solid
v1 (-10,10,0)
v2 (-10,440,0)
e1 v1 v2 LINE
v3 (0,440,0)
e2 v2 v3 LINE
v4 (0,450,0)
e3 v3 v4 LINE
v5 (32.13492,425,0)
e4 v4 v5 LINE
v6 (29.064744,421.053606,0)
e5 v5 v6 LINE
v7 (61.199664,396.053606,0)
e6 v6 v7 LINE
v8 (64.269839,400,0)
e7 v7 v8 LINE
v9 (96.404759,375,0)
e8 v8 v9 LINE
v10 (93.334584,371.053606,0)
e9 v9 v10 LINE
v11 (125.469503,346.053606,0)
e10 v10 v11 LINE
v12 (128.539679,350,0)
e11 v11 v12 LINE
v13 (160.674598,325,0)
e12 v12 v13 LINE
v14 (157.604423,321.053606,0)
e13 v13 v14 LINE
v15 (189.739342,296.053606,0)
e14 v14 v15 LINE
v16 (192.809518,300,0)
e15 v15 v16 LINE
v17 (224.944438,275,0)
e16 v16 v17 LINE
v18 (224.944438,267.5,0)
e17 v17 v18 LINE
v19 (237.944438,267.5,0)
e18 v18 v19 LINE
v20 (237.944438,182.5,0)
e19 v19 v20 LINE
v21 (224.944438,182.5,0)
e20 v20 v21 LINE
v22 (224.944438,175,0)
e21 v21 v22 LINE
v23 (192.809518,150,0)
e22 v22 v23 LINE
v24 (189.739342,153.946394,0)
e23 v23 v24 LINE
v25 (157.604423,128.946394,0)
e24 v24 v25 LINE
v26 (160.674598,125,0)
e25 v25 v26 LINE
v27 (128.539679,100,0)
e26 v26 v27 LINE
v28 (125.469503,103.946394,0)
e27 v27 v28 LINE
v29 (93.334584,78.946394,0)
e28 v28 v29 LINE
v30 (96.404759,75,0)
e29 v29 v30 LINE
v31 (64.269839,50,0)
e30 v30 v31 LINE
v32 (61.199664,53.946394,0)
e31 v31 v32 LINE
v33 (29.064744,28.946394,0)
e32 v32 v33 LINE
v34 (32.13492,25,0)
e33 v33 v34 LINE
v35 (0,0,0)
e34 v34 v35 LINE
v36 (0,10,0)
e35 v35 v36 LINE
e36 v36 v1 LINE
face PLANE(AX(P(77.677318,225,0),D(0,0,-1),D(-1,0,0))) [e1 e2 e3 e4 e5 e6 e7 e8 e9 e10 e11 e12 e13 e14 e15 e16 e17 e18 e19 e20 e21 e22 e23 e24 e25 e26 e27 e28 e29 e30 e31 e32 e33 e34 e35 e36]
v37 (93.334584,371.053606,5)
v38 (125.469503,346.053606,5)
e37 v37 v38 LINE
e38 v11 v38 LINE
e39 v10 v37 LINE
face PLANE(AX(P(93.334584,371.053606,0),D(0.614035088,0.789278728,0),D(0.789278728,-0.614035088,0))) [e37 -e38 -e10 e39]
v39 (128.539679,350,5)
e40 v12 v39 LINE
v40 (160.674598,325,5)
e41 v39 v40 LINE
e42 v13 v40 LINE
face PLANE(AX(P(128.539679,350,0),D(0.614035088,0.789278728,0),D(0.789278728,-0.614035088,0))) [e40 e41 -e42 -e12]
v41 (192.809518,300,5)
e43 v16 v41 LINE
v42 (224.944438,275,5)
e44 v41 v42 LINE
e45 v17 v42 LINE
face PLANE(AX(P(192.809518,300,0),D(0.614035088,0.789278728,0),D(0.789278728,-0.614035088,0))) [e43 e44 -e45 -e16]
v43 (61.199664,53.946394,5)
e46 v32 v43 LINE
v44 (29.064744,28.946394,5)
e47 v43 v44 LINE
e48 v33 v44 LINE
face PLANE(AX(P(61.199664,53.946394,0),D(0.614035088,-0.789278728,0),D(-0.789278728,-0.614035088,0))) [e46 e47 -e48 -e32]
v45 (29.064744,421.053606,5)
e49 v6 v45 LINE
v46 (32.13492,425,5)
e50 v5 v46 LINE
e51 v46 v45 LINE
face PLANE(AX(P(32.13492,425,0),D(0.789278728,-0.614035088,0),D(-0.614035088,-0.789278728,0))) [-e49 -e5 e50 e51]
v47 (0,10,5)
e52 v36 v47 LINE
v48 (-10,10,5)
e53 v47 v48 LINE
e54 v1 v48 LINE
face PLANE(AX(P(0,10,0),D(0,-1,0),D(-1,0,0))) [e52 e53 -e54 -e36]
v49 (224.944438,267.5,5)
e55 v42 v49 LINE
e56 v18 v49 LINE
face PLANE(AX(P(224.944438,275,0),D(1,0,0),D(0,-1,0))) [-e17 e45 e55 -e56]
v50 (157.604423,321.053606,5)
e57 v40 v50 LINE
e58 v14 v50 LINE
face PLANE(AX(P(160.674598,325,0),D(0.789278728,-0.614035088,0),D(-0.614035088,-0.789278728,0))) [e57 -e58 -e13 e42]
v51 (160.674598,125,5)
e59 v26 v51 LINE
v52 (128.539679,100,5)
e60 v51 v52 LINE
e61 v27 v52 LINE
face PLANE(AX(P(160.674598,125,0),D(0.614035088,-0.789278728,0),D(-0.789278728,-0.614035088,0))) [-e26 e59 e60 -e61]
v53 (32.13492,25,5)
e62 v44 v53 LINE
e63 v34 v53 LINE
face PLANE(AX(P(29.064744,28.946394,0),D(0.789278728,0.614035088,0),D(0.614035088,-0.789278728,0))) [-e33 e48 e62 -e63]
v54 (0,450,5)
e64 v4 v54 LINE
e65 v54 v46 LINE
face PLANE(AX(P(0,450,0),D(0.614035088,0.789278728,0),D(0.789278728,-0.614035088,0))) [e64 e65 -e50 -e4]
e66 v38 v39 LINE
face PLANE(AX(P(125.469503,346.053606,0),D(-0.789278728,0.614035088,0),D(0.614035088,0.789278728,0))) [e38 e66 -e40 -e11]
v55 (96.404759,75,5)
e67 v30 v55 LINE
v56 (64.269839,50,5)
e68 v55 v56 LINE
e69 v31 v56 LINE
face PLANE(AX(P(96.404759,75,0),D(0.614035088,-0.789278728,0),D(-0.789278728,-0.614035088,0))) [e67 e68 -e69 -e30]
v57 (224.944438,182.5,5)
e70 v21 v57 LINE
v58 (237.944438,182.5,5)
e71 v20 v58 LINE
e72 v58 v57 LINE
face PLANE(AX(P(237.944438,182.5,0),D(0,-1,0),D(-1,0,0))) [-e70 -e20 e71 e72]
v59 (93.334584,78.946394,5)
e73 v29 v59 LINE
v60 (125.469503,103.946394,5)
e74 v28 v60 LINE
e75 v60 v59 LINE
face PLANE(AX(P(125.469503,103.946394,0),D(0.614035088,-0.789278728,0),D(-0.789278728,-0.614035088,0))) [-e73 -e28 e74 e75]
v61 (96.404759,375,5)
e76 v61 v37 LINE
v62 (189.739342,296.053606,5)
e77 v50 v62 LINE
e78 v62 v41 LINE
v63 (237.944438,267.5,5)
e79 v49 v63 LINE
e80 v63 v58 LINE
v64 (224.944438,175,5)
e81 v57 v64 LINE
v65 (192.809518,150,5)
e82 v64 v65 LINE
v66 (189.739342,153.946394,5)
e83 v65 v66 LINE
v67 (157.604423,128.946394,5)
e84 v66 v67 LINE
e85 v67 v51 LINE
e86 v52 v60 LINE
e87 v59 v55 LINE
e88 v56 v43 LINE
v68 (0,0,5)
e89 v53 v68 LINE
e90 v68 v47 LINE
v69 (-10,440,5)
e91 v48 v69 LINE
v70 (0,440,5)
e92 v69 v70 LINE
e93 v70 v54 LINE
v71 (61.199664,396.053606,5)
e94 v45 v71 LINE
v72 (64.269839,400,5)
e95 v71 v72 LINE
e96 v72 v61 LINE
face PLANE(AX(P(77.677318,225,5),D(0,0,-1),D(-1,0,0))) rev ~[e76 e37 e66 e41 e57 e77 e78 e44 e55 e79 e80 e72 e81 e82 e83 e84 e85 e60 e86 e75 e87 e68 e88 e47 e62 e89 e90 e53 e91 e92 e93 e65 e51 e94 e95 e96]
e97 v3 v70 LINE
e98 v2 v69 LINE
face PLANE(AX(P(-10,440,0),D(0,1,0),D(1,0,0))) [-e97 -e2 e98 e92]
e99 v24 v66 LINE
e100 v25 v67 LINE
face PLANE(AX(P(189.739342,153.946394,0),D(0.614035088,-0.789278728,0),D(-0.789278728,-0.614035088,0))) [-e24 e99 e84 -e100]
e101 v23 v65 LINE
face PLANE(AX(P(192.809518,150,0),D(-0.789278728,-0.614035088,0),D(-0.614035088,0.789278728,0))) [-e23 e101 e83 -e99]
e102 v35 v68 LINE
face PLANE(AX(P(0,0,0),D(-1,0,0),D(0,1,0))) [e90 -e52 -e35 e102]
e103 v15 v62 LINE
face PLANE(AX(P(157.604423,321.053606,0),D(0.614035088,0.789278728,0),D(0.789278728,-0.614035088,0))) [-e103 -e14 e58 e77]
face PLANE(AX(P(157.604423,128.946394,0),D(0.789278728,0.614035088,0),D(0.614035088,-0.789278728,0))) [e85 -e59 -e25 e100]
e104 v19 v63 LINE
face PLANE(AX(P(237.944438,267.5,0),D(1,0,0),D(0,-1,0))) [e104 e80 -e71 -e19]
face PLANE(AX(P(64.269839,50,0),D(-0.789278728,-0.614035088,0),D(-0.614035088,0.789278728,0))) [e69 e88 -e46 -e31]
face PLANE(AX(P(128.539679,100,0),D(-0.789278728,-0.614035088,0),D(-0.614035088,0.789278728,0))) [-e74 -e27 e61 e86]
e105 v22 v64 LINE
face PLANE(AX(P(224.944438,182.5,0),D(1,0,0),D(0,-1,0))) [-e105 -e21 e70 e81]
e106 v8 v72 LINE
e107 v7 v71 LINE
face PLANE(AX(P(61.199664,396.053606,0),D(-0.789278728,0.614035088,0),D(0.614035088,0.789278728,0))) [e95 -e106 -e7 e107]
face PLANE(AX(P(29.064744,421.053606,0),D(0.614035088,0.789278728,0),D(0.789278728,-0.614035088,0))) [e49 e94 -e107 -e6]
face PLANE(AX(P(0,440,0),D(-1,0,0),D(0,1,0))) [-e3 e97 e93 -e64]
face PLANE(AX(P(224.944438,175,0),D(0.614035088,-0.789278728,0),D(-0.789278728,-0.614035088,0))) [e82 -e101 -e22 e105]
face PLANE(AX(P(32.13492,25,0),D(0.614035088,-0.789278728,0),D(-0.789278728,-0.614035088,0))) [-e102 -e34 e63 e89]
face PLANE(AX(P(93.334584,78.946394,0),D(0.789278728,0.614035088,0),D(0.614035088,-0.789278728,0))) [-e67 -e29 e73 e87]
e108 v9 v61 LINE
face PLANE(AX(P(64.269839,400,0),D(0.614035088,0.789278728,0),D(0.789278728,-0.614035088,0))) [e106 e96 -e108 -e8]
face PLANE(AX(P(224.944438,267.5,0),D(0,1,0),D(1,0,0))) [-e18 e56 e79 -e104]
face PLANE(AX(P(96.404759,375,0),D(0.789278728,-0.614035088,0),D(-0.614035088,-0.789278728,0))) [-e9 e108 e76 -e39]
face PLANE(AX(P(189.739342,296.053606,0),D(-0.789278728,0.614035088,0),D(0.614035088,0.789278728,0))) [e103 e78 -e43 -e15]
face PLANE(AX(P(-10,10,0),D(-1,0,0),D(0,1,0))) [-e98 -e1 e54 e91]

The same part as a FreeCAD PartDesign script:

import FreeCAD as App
import Part
import Sketcher

V = App.Vector


def add_polygon(sketch, points):
    """Adds a closed chain of lines whose ends are joined by coincident constraints."""
    first, n = sketch.GeometryCount, len(points)
    for a, b in zip(points, points[1:] + points[:1]):
        sketch.addGeometry(Part.LineSegment(App.Vector(*a, 0), App.Vector(*b, 0)), False)
    for i in range(n):
        sketch.addConstraint(Sketcher.Constraint("Coincident", first + i, 2, first + (i + 1) % n, 1))

doc = App.newDocument("Part")
params = doc.addObject("Spreadsheet::Sheet", "Params")
for row, (alias, value) in enumerate([
    ("sketch1_width", "13 mm"),
    ("sketch1_width2", "10 mm"),
    ("sketch1_height", "85 mm"),
    ("sketch1_height2", "430 mm"),
    ("sketch1_length", "5 mm"),
    ("pad1_length", "5 mm"),
], start=1):
    params.set(f"A{row}", alias)
    params.set(f"B{row}", "=" + value)
    params.setAlias(f"B{row}", alias)

body = doc.addObject("PartDesign::Body", "Body")

# Sketch on XY plane
sketch1 = body.newObject("Sketcher::SketchObject", "Sketch")
sketch1.AttachmentSupport = (doc.getObject("XY_Plane"), [""])
sketch1.MapMode = "FlatFace"
add_polygon(sketch1, [(0, 10), (0, 0), (32.13492, 25), (29.064744, 28.946394), (61.199664, 53.946394), (64.269839, 50), (96.404759, 75), (93.334584, 78.946394), (125.469503, 103.946394), (128.539679, 100), (160.674598, 125), (157.604423, 128.946394), (189.739342, 153.946394), (192.809518, 150), (224.944438, 175), (224.944438, 182.5), (237.944438, 182.5), (237.944438, 267.5), (224.944438, 267.5), (224.944438, 275), (192.809518, 300), (189.739342, 296.053606), (157.604423, 321.053606), (160.674598, 325), (128.539679, 350), (125.469503, 346.053606), (93.334584, 371.053606), (96.404759, 375), (64.269839, 400), (61.199664, 396.053606), (29.064744, 421.053606), (32.13492, 425), (0, 450), (0, 440), (-10, 440), (-10, 10)])  # lines 0-35
sketch1.addConstraint(Sketcher.Constraint("Vertical", 0))
sketch1.addConstraint(Sketcher.Constraint("Vertical", 14))
sketch1.addConstraint(Sketcher.Constraint("Horizontal", 15))
sketch1.addConstraint(Sketcher.Constraint("Vertical", 16))
sketch1.addConstraint(Sketcher.Constraint("Horizontal", 17))
sketch1.addConstraint(Sketcher.Constraint("Vertical", 18))
sketch1.addConstraint(Sketcher.Constraint("Vertical", 32))
sketch1.addConstraint(Sketcher.Constraint("Horizontal", 33))
sketch1.addConstraint(Sketcher.Constraint("Vertical", 34))
sketch1.addConstraint(Sketcher.Constraint("Horizontal", 35))
sketch1.addConstraint(Sketcher.Constraint("Coincident", 0, 2, -1, 1))
sketch1.addConstraint(Sketcher.Constraint("PointOnObject", 31, 2, -2))
sketch1.addConstraint(Sketcher.Constraint("Perpendicular", 1, 2))
sketch1.addConstraint(Sketcher.Constraint("Perpendicular", 2, 3))
sketch1.addConstraint(Sketcher.Constraint("Perpendicular", 3, 4))
sketch1.addConstraint(Sketcher.Constraint("Perpendicular", 4, 5))
sketch1.addConstraint(Sketcher.Constraint("Perpendicular", 5, 6))
sketch1.addConstraint(Sketcher.Constraint("Perpendicular", 6, 7))
sketch1.addConstraint(Sketcher.Constraint("Perpendicular", 7, 8))
sketch1.addConstraint(Sketcher.Constraint("Perpendicular", 8, 9))
sketch1.addConstraint(Sketcher.Constraint("Perpendicular", 9, 10))
sketch1.addConstraint(Sketcher.Constraint("Perpendicular", 10, 11))
sketch1.addConstraint(Sketcher.Constraint("Perpendicular", 11, 12))
sketch1.addConstraint(Sketcher.Constraint("Perpendicular", 12, 13))
sketch1.addConstraint(Sketcher.Constraint("Perpendicular", 19, 20))
sketch1.addConstraint(Sketcher.Constraint("Perpendicular", 20, 21))
sketch1.addConstraint(Sketcher.Constraint("Perpendicular", 21, 22))
sketch1.addConstraint(Sketcher.Constraint("Perpendicular", 22, 23))
sketch1.addConstraint(Sketcher.Constraint("Perpendicular", 23, 24))
sketch1.addConstraint(Sketcher.Constraint("Perpendicular", 24, 25))
sketch1.addConstraint(Sketcher.Constraint("Perpendicular", 25, 26))
sketch1.addConstraint(Sketcher.Constraint("Perpendicular", 26, 27))
sketch1.addConstraint(Sketcher.Constraint("Perpendicular", 27, 28))
sketch1.addConstraint(Sketcher.Constraint("Perpendicular", 28, 29))
sketch1.addConstraint(Sketcher.Constraint("Perpendicular", 29, 30))
sketch1.addConstraint(Sketcher.Constraint("Perpendicular", 30, 31))
sketch1.addConstraint(Sketcher.Constraint("Vertical", 14, 2, 17, 2))
sketch1.addConstraint(Sketcher.Constraint("Vertical", 12, 2, 19, 2))
sketch1.addConstraint(Sketcher.Constraint("Vertical", 11, 2, 20, 2))
sketch1.addConstraint(Sketcher.Constraint("Vertical", 10, 2, 21, 2))
sketch1.addConstraint(Sketcher.Constraint("Vertical", 9, 2, 22, 2))
sketch1.addConstraint(Sketcher.Constraint("Vertical", 8, 2, 23, 2))
sketch1.addConstraint(Sketcher.Constraint("Vertical", 7, 2, 24, 2))
sketch1.addConstraint(Sketcher.Constraint("Vertical", 6, 2, 25, 2))
sketch1.addConstraint(Sketcher.Constraint("Vertical", 5, 2, 26, 2))
sketch1.addConstraint(Sketcher.Constraint("Vertical", 4, 2, 27, 2))
sketch1.addConstraint(Sketcher.Constraint("Vertical", 3, 2, 28, 2))
sketch1.addConstraint(Sketcher.Constraint("Vertical", 2, 2, 29, 2))
sketch1.addConstraint(Sketcher.Constraint("Vertical", 1, 2, 30, 2))
sketch1.addConstraint(Sketcher.Constraint("Equal", 35, 0))
sketch1.addConstraint(Sketcher.Constraint("Equal", 14, 18))
sketch1.addConstraint(Sketcher.Constraint("Equal", 0, 32))
sketch1.addConstraint(Sketcher.Constraint("Equal", 1, 3))
sketch1.addConstraint(Sketcher.Constraint("Equal", 2, 4))
sketch1.addConstraint(Sketcher.Constraint("Equal", 3, 5))
sketch1.addConstraint(Sketcher.Constraint("Equal", 4, 6))
sketch1.addConstraint(Sketcher.Constraint("Equal", 5, 7))
sketch1.addConstraint(Sketcher.Constraint("Equal", 6, 8))
sketch1.addConstraint(Sketcher.Constraint("Equal", 7, 9))
sketch1.addConstraint(Sketcher.Constraint("Equal", 8, 10))
sketch1.addConstraint(Sketcher.Constraint("Equal", 9, 11))
sketch1.addConstraint(Sketcher.Constraint("Equal", 10, 12))
sketch1.addConstraint(Sketcher.Constraint("Equal", 11, 13))
sketch1.addConstraint(Sketcher.Constraint("Equal", 13, 19))
sketch1.addConstraint(Sketcher.Constraint("DistanceX", 15, 1, 15, 2, 13.0))
sketch1.addConstraint(Sketcher.Constraint("DistanceX", 33, 2, 33, 1, 10.0))
sketch1.addConstraint(Sketcher.Constraint("DistanceY", 16, 1, 16, 2, 85.0))
sketch1.addConstraint(Sketcher.Constraint("DistanceY", 34, 2, 34, 1, 430.0))
sketch1.addConstraint(Sketcher.Constraint("Distance", 2, 5.0))
sketch1.addConstraint(Sketcher.Constraint("DistanceY", 14, 1, 14, 2, 7.5))
sketch1.addConstraint(Sketcher.Constraint("DistanceX", -1, 1, 9, 2, 160.674598))
sketch1.setExpression("Constraints[100]", "Params.sketch1_width")
sketch1.setExpression("Constraints[101]", "Params.sketch1_width2")
sketch1.setExpression("Constraints[102]", "Params.sketch1_height")
sketch1.setExpression("Constraints[103]", "Params.sketch1_height2")
sketch1.setExpression("Constraints[104]", "Params.sketch1_length")
pad1 = body.newObject("PartDesign::Pad", "Pad")
pad1.Profile = sketch1
pad1.setExpression("Length", "Params.pad1_length")

doc.recompute()
